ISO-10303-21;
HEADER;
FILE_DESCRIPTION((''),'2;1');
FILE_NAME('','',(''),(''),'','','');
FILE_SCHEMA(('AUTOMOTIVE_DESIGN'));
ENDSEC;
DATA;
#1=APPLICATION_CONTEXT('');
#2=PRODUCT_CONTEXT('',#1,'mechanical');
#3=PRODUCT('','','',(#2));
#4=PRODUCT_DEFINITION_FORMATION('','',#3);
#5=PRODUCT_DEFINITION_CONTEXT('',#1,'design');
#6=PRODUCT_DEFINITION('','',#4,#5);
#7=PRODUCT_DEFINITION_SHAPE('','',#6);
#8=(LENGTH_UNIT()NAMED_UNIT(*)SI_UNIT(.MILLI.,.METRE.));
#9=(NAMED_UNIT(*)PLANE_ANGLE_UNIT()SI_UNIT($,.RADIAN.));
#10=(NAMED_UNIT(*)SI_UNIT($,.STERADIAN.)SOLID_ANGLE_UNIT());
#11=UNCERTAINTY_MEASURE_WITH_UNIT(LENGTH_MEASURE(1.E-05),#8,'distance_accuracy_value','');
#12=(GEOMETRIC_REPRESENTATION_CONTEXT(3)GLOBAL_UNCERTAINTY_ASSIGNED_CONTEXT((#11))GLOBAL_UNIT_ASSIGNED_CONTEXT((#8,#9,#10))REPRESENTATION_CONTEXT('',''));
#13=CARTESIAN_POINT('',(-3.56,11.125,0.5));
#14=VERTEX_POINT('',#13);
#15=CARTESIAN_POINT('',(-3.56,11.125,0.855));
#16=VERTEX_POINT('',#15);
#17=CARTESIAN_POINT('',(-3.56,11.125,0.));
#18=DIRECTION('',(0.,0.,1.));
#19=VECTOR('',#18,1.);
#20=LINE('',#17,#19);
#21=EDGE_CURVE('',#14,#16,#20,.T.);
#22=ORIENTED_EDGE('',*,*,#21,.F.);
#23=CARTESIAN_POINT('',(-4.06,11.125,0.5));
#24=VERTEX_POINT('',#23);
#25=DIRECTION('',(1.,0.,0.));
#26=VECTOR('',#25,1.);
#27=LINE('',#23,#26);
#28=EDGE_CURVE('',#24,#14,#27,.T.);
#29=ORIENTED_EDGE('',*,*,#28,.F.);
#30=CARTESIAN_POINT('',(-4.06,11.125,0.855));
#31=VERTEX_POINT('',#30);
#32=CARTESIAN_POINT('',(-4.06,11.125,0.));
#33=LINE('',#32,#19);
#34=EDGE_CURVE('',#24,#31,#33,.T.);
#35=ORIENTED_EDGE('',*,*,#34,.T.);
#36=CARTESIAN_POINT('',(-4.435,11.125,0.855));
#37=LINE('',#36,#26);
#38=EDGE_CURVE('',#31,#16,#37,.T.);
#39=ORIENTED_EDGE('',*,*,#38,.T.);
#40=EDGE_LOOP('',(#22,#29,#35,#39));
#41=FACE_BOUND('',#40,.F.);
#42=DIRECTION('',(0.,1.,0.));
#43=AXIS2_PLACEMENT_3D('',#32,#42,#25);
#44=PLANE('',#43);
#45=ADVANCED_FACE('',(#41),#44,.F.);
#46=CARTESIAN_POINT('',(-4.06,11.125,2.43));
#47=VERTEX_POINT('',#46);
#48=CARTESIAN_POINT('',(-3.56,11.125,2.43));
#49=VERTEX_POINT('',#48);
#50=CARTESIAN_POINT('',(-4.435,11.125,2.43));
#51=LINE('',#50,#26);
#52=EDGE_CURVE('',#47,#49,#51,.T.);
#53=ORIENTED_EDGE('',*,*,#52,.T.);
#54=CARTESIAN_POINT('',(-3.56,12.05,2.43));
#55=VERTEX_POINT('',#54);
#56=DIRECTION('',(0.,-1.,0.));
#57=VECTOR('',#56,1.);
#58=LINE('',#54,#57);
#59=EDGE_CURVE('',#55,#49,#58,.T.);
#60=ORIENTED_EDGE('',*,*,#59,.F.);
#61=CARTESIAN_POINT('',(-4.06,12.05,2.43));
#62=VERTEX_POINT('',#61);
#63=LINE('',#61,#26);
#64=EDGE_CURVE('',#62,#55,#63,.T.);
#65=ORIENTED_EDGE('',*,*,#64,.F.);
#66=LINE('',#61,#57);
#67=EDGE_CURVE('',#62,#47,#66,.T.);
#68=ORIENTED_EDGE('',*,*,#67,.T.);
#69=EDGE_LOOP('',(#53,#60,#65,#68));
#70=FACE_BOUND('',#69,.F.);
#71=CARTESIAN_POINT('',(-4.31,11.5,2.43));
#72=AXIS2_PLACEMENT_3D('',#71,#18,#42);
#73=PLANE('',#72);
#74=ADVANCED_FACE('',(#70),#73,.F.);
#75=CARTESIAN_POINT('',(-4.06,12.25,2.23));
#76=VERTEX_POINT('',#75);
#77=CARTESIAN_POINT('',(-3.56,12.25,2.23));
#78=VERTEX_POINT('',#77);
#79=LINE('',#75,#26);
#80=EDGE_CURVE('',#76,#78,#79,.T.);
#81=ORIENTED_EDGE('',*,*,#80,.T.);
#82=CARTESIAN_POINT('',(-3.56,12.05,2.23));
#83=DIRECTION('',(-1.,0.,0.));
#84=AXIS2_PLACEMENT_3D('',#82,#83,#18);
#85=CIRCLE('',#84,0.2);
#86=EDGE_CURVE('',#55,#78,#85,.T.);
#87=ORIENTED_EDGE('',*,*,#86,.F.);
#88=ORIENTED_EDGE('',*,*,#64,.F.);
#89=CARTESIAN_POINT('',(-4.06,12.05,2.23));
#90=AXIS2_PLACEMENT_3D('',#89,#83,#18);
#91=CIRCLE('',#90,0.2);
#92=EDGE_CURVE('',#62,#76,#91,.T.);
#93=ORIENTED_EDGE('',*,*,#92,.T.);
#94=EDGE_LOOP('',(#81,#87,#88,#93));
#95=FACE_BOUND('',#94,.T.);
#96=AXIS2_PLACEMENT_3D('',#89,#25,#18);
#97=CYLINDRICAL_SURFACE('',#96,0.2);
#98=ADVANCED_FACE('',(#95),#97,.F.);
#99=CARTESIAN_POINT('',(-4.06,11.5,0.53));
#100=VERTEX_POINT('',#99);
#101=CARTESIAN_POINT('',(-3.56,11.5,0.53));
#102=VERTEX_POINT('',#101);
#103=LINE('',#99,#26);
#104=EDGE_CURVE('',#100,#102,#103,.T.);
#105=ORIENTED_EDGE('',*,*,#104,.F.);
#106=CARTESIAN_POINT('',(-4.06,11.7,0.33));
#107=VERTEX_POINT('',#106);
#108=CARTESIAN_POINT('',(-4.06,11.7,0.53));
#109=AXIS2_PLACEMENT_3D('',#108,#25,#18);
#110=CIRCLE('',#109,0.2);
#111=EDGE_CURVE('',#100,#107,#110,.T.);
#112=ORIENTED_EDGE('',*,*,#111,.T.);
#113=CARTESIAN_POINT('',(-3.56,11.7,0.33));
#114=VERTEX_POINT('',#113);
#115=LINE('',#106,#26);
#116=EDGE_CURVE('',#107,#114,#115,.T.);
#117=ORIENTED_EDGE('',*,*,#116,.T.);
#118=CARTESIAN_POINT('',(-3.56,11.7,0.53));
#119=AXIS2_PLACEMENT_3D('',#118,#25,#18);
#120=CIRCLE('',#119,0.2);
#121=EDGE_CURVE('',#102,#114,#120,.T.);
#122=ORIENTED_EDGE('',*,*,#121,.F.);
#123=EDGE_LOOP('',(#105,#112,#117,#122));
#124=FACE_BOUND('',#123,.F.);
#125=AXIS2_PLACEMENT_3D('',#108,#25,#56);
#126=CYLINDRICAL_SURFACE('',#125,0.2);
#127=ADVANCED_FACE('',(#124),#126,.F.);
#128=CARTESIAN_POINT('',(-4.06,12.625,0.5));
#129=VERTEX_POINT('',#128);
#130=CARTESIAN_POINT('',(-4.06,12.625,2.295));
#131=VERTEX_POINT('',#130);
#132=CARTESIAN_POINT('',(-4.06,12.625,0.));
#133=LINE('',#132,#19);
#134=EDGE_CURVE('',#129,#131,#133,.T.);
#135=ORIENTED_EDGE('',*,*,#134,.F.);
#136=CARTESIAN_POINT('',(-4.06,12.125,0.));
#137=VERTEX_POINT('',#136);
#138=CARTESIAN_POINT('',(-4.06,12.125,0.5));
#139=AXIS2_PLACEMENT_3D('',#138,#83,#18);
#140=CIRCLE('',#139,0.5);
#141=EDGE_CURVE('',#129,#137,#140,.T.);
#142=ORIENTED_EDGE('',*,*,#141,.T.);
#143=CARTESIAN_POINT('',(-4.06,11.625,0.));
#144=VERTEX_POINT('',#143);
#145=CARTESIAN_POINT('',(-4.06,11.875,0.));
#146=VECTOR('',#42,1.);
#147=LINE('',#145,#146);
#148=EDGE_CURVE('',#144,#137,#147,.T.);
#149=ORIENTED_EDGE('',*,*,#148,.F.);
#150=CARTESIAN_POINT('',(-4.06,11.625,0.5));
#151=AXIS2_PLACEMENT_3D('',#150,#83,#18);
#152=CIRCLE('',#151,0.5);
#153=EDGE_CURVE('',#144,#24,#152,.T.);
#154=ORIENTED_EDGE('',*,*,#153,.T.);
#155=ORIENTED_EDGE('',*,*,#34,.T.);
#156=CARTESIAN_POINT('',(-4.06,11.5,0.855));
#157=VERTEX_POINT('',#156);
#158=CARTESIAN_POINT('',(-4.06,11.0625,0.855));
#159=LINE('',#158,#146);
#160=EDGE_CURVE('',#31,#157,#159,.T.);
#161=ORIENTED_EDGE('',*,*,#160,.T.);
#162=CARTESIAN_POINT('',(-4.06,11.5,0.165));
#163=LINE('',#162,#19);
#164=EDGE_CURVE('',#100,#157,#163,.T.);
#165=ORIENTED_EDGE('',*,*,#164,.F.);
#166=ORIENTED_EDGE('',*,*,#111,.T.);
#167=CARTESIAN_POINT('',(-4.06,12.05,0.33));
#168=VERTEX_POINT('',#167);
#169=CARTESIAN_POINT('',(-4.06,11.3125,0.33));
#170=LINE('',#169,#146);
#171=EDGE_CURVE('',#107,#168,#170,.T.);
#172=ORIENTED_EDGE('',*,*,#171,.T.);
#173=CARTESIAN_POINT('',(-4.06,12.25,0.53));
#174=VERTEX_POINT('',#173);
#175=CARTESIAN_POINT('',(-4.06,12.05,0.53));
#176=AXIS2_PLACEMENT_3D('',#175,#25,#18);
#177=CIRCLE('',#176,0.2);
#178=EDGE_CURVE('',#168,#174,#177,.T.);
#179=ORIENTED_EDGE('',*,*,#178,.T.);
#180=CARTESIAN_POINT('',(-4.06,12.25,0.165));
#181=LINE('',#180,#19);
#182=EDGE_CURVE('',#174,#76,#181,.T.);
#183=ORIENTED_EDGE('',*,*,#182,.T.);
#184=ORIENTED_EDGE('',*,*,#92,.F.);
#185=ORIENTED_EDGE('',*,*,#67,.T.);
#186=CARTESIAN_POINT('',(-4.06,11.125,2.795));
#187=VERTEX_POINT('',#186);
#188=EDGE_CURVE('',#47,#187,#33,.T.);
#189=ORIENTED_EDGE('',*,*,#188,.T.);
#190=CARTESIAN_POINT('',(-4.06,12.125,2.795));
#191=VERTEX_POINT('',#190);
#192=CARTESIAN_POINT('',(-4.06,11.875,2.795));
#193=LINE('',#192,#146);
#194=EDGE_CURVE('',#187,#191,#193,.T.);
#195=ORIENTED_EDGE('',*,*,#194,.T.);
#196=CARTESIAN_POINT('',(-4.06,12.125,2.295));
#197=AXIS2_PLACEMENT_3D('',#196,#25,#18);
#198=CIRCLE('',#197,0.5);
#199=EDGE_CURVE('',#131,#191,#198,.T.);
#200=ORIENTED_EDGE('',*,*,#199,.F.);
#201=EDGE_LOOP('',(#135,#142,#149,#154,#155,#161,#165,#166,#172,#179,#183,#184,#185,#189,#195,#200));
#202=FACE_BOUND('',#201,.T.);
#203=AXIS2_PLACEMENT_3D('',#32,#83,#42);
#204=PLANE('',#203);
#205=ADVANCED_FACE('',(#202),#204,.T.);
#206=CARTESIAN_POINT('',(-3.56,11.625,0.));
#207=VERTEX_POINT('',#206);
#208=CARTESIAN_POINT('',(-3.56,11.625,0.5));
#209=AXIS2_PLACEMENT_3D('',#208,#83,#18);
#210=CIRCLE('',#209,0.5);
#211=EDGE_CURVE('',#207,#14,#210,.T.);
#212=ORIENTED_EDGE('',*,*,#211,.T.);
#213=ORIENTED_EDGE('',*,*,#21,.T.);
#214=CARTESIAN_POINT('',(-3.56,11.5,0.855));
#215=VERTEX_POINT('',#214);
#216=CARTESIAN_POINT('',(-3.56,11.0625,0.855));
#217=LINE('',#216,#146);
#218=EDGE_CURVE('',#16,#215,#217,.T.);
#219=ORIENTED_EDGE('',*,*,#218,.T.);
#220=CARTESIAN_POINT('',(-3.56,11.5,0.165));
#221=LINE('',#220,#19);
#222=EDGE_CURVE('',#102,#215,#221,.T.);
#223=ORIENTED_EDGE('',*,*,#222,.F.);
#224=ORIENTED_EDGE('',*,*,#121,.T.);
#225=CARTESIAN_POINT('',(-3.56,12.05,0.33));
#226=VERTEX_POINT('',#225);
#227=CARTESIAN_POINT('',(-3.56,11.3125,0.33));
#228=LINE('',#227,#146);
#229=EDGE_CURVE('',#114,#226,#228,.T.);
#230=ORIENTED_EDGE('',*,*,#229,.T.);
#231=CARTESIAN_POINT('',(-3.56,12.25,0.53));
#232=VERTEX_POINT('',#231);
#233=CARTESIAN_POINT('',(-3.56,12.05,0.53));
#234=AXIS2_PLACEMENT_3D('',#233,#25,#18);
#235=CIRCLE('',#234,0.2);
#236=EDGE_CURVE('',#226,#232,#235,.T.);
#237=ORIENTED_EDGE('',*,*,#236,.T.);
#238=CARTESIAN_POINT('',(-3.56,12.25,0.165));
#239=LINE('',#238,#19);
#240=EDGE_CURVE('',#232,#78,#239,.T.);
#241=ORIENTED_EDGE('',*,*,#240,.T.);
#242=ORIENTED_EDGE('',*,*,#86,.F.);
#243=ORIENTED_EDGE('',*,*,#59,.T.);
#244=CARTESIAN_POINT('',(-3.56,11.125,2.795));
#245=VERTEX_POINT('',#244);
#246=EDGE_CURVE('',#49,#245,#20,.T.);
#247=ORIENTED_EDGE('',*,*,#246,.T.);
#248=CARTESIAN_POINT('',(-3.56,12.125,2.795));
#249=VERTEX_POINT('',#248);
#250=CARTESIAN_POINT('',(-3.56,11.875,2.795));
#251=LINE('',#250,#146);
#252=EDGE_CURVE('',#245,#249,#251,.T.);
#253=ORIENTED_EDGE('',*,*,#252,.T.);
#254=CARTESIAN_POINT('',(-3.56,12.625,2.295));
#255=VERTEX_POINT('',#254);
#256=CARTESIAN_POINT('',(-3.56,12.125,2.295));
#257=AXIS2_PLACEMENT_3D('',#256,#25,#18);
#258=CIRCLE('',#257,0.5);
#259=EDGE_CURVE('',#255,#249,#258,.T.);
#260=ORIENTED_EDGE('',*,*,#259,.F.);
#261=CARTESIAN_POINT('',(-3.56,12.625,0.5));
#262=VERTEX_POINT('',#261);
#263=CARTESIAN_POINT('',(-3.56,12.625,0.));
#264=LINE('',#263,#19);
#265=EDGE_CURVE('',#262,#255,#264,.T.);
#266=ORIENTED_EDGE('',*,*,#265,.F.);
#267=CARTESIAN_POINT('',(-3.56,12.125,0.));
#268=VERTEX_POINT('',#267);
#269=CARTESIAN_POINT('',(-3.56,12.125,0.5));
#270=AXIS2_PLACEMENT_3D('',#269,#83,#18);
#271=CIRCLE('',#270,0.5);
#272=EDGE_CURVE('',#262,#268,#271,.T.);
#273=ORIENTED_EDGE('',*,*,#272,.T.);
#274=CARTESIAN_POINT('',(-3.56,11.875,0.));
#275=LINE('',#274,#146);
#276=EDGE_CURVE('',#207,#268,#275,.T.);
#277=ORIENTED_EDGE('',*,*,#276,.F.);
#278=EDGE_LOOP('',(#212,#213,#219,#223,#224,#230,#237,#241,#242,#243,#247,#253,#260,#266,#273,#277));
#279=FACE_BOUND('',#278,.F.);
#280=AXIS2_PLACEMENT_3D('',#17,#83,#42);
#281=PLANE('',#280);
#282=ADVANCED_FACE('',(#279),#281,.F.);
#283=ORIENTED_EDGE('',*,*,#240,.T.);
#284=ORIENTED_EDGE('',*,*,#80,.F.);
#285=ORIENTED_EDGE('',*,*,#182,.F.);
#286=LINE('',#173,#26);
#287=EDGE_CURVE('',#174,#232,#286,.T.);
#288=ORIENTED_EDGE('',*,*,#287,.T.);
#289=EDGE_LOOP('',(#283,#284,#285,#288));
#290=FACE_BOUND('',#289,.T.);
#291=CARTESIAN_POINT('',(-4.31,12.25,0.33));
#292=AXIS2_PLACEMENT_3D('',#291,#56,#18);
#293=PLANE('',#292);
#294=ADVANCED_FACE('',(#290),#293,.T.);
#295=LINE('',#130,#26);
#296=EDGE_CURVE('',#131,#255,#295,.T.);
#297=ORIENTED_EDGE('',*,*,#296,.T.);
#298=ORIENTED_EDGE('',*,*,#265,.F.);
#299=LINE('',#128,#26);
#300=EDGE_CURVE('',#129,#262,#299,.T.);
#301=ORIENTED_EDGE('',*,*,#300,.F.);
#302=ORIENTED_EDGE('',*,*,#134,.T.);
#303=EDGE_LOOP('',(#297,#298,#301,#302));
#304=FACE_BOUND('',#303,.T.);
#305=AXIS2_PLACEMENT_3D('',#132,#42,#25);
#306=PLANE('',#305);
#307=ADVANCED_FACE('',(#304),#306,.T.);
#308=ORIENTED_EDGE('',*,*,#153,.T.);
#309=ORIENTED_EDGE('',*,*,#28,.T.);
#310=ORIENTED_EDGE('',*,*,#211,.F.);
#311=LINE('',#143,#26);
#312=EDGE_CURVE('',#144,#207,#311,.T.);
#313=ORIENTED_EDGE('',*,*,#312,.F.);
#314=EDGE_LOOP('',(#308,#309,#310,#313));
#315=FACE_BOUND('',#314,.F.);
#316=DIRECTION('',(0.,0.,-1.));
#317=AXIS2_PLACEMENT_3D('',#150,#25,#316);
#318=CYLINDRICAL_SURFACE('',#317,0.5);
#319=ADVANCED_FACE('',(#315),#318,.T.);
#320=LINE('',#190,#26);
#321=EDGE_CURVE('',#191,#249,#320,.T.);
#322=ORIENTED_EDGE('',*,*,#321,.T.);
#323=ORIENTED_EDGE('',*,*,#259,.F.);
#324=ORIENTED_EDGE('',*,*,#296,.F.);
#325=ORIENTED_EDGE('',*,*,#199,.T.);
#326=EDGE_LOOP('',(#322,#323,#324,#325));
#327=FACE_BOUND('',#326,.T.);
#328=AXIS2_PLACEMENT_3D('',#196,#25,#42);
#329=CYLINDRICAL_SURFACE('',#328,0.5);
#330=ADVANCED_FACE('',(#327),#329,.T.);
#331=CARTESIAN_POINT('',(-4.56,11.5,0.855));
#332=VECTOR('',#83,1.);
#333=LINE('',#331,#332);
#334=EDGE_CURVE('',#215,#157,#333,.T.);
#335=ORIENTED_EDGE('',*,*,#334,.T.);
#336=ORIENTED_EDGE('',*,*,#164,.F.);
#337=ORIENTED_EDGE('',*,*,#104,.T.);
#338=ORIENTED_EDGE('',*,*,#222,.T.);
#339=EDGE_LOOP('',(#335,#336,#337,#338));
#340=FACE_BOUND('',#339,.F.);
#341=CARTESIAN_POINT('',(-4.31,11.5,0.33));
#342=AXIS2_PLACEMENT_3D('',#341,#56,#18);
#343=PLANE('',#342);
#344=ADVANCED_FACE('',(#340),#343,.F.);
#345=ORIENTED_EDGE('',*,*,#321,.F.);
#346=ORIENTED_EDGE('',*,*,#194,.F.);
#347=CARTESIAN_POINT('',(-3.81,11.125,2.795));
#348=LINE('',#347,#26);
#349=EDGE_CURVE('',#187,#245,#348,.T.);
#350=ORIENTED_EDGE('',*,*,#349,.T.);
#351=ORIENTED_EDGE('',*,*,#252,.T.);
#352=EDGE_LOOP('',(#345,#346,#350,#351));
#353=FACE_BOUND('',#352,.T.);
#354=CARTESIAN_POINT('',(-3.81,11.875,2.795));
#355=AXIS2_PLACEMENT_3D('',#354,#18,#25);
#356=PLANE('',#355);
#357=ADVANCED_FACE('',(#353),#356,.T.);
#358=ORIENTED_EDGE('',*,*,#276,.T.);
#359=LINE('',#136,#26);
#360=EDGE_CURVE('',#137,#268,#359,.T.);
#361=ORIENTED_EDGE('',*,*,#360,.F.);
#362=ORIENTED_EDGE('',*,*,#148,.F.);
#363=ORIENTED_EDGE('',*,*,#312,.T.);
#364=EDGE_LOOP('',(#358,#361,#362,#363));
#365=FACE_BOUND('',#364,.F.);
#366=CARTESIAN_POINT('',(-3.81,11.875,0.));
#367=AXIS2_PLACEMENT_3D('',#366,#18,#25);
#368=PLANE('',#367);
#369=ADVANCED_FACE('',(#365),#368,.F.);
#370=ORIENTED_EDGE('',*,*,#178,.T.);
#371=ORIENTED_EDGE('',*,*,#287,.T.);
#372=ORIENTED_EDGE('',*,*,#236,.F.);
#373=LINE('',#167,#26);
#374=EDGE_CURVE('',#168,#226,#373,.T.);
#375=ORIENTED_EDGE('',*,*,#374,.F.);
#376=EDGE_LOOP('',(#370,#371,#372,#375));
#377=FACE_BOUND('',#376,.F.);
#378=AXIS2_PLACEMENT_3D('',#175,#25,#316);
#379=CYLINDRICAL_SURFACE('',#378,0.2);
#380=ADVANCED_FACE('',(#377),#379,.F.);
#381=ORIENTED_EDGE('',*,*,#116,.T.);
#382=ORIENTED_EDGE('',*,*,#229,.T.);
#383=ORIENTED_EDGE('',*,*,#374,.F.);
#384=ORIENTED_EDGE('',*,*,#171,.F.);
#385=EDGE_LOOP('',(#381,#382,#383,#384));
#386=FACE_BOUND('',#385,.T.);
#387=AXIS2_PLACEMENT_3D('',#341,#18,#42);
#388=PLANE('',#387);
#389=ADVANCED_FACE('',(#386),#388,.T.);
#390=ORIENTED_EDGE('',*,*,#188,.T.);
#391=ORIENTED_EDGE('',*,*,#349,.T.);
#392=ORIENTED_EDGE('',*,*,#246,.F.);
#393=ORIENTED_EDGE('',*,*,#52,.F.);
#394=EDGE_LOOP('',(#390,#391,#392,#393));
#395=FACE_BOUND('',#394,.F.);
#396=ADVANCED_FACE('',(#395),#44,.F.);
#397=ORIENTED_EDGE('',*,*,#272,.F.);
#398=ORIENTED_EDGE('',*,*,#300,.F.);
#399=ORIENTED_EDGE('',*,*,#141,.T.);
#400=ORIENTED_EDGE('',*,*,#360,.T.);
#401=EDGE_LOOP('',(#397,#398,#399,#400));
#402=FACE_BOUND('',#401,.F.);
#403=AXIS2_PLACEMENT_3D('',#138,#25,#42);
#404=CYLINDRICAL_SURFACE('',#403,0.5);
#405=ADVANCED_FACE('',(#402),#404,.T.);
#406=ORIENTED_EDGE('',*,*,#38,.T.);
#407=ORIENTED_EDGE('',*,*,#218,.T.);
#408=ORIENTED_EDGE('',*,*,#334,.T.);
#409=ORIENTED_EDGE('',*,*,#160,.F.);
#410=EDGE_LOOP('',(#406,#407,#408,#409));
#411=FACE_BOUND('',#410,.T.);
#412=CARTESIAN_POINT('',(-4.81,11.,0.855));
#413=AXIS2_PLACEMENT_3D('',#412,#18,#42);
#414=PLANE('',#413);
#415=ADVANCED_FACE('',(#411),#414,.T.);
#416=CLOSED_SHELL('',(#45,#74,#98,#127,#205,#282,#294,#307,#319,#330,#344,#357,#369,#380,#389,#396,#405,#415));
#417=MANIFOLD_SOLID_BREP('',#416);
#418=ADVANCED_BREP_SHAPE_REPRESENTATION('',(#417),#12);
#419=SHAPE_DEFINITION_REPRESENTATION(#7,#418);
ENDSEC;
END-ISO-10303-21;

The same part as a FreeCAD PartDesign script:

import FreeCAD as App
import Part
import Sketcher
from FreeCAD import Vector


def edges_at(feature, points):
    """Names of the edges that pass closest to the given points."""
    edges = feature.Shape.Edges
    near = lambda p: min(range(len(edges)), key=lambda i: edges[i].distToShape(Part.Vertex(*p))[0])
    return sorted({f"Edge{near(p) + 1}" for p in points})

doc = App.newDocument("Part")
body = doc.addObject("PartDesign::Body", "Body")

sketch1 = body.newObject("Sketcher::SketchObject", "Sketch")
sketch1.AttachmentSupport = (doc.getObject("XY_Plane"), [""])
sketch1.MapMode = "FlatFace"
sketch1.addGeometry(Part.LineSegment(Vector(-0.2, 12.6, 0), Vector(-0.2, 11.1, 0)), False)
sketch1.addGeometry(Part.LineSegment(Vector(-0.2, 11.1, 0), Vector(0.2, 11.1, 0)), False)
sketch1.addGeometry(Part.LineSegment(Vector(0.2, 11.1, 0), Vector(0.2, 12.6, 0)), False)
sketch1.addGeometry(Part.LineSegment(Vector(0.2, 12.6, 0), Vector(-0.2, 12.6, 0)), False)
sketch1.addConstraint(Sketcher.Constraint("Coincident", 0, 2, 1, 1))
sketch1.addConstraint(Sketcher.Constraint("Coincident", 1, 2, 2, 1))
sketch1.addConstraint(Sketcher.Constraint("Coincident", 2, 2, 3, 1))
sketch1.addConstraint(Sketcher.Constraint("Coincident", 3, 2, 0, 1))
sketch1.addConstraint(Sketcher.Constraint("Vertical", 0))
sketch1.addConstraint(Sketcher.Constraint("Horizontal", 1))
sketch1.addConstraint(Sketcher.Constraint("Vertical", 2))
sketch1.addConstraint(Sketcher.Constraint("Horizontal", 3))
sketch1.addConstraint(Sketcher.Constraint("DistanceX", 1, 1, 1, 2, 0.5))
sketch1.addConstraint(Sketcher.Constraint("DistanceY", 0, 2, 0, 1, 1.5))
sketch1.addConstraint(Sketcher.Constraint("DistanceX", 0, 2, -1, 1, 0.25))
sketch1.addConstraint(Sketcher.Constraint("DistanceY", -1, 1, 0, 2, 11.125))
pad1 = body.newObject("PartDesign::Pad", "Pad")
pad1.Profile = sketch1
pad1.Length = 2.795
doc.recompute()

fillet = body.newObject("PartDesign::Fillet", "Fillet")
fillet.Base = (pad1, edges_at(pad1, [(0, 12.625, 0)]))
fillet.Radius = 0.5
doc.recompute()

fillet2 = body.newObject("PartDesign::Fillet", "Fillet001")
fillet2.Base = (fillet, edges_at(fillet, [(0, 12.625, 2.795)]))
fillet2.Radius = 0.5
doc.recompute()

fillet3 = body.newObject("PartDesign::Fillet", "Fillet002")
fillet3.Base = (fillet2, edges_at(fillet2, [(0, 11.125, 0)]))
fillet3.Radius = 0.5

sketch2 = body.newObject("Sketcher::SketchObject", "Sketch001")
sketch2.AttachmentSupport = (doc.getObject("YZ_Plane"), [""])
sketch2.MapMode = "FlatFace"
sketch2.AttachmentOffset = App.Placement(Vector(0, 0, -0.5), App.Rotation())
sketch2.addGeometry(Part.LineSegment(Vector(11.5, 2.4, 0), Vector(11.5, 0.3, 0)), False)
sketch2.addGeometry(Part.LineSegment(Vector(11.5, 0.3, 0), Vector(12.2, 0.3, 0)), False)
sketch2.addGeometry(Part.LineSegment(Vector(12.2, 0.3, 0), Vector(12.2, 2.4, 0)), False)
sketch2.addGeometry(Part.LineSegment(Vector(12.2, 2.4, 0), Vector(11.5, 2.4, 0)), False)
sketch2.addConstraint(Sketcher.Constraint("Coincident", 0, 2, 1, 1))
sketch2.addConstraint(Sketcher.Constraint("Coincident", 1, 2, 2, 1))
sketch2.addConstraint(Sketcher.Constraint("Coincident", 2, 2, 3, 1))
sketch2.addConstraint(Sketcher.Constraint("Coincident", 3, 2, 0, 1))
sketch2.addConstraint(Sketcher.Constraint("Vertical", 0))
sketch2.addConstraint(Sketcher.Constraint("Horizontal", 1))
sketch2.addConstraint(Sketcher.Constraint("Vertical", 2))
sketch2.addConstraint(Sketcher.Constraint("Horizontal", 3))
sketch2.addConstraint(Sketcher.Constraint("DistanceY", 0, 2, 0, 1, 2.1))
sketch2.addConstraint(Sketcher.Constraint("DistanceX", 1, 1, 1, 2, 0.75))
sketch2.addConstraint(Sketcher.Constraint("DistanceX", -1, 1, 0, 2, 11.5))
sketch2.addConstraint(Sketcher.Constraint("DistanceY", -1, 1, 0, 2, 0.33))
pocket1 = body.newObject("PartDesign::Pocket", "Pocket")
pocket1.Profile = sketch2
pocket1.Length = 1
pocket1.Reversed = True
doc.recompute()

fillet4 = body.newObject("PartDesign::Fillet", "Fillet003")
fillet4.Base = (pocket1, edges_at(pocket1, [(0, 11.5, 0.33)]))
fillet4.Radius = 0.2
doc.recompute()

fillet5 = body.newObject("PartDesign::Fillet", "Fillet004")
fillet5.Base = (fillet4, edges_at(fillet4, [(0, 12.25, 0.33)]))
fillet5.Radius = 0.2
doc.recompute()

fillet6 = body.newObject("PartDesign::Fillet", "Fillet005")
fillet6.Base = (fillet5, edges_at(fillet5, [(0, 11.5, 2.43)]))
fillet6.Radius = 0.2
doc.recompute()

fillet7 = body.newObject("PartDesign::Fillet", "Fillet006")
fillet7.Base = (fillet6, edges_at(fillet6, [(0, 12.25, 2.43)]))
fillet7.Radius = 0.2

sketch3 = body.newObject("Sketcher::SketchObject", "Sketch002")
sketch3.AttachmentSupport = (doc.getObject("YZ_Plane"), [""])
sketch3.MapMode = "FlatFace"
sketch3.AttachmentOffset = App.Placement(Vector(0, 0, -1), App.Rotation())
sketch3.addGeometry(Part.LineSegment(Vector(11, 2.4, 0), Vector(11, 0.9, 0)), False)
sketch3.addGeometry(Part.LineSegment(Vector(11, 0.9, 0), Vector(12, 0.9, 0)), False)
sketch3.addGeometry(Part.LineSegment(Vector(12, 0.9, 0), Vector(12, 2.4, 0)), False)
sketch3.addGeometry(Part.LineSegment(Vector(12, 2.4, 0), Vector(11, 2.4, 0)), False)
sketch3.addConstraint(Sketcher.Constraint("Coincident", 0, 2, 1, 1))
sketch3.addConstraint(Sketcher.Constraint("Coincident", 1, 2, 2, 1))
sketch3.addConstraint(Sketcher.Constraint("Coincident", 2, 2, 3, 1))
sketch3.addConstraint(Sketcher.Constraint("Coincident", 3, 2, 0, 1))
sketch3.addConstraint(Sketcher.Constraint("Vertical", 0))
sketch3.addConstraint(Sketcher.Constraint("Horizontal", 1))
sketch3.addConstraint(Sketcher.Constraint("Vertical", 2))
sketch3.addConstraint(Sketcher.Constraint("Horizontal", 3))
sketch3.addConstraint(Sketcher.Constraint("DistanceX", 1, 1, 1, 2, 1.0))
sketch3.addConstraint(Sketcher.Constraint("DistanceX", -1, 1, 0, 2, 11.0))
sketch3.addConstraint(Sketcher.Constraint("DistanceY", 0, 2, 0, 1, 1.575))
sketch3.addConstraint(Sketcher.Constraint("DistanceY", -1, 1, 2, 2, 2.43))
pocket2 = body.newObject("PartDesign::Pocket", "Pocket001")
pocket2.Profile = sketch3
pocket2.Length = 3
pocket2.Reversed = True
body2 = doc.addObject("PartDesign::Body", "Body001")
doc.recompute()

body.Placement = App.Placement(Vector(-3.81, 0, 0), App.Rotation(Vector(0, 0, 1), 0))
boolean = body2.newObject("PartDesign::Boolean", "Boolean")
boolean.Type = "Fuse"
boolean.addObjects([body])

doc.recompute()
